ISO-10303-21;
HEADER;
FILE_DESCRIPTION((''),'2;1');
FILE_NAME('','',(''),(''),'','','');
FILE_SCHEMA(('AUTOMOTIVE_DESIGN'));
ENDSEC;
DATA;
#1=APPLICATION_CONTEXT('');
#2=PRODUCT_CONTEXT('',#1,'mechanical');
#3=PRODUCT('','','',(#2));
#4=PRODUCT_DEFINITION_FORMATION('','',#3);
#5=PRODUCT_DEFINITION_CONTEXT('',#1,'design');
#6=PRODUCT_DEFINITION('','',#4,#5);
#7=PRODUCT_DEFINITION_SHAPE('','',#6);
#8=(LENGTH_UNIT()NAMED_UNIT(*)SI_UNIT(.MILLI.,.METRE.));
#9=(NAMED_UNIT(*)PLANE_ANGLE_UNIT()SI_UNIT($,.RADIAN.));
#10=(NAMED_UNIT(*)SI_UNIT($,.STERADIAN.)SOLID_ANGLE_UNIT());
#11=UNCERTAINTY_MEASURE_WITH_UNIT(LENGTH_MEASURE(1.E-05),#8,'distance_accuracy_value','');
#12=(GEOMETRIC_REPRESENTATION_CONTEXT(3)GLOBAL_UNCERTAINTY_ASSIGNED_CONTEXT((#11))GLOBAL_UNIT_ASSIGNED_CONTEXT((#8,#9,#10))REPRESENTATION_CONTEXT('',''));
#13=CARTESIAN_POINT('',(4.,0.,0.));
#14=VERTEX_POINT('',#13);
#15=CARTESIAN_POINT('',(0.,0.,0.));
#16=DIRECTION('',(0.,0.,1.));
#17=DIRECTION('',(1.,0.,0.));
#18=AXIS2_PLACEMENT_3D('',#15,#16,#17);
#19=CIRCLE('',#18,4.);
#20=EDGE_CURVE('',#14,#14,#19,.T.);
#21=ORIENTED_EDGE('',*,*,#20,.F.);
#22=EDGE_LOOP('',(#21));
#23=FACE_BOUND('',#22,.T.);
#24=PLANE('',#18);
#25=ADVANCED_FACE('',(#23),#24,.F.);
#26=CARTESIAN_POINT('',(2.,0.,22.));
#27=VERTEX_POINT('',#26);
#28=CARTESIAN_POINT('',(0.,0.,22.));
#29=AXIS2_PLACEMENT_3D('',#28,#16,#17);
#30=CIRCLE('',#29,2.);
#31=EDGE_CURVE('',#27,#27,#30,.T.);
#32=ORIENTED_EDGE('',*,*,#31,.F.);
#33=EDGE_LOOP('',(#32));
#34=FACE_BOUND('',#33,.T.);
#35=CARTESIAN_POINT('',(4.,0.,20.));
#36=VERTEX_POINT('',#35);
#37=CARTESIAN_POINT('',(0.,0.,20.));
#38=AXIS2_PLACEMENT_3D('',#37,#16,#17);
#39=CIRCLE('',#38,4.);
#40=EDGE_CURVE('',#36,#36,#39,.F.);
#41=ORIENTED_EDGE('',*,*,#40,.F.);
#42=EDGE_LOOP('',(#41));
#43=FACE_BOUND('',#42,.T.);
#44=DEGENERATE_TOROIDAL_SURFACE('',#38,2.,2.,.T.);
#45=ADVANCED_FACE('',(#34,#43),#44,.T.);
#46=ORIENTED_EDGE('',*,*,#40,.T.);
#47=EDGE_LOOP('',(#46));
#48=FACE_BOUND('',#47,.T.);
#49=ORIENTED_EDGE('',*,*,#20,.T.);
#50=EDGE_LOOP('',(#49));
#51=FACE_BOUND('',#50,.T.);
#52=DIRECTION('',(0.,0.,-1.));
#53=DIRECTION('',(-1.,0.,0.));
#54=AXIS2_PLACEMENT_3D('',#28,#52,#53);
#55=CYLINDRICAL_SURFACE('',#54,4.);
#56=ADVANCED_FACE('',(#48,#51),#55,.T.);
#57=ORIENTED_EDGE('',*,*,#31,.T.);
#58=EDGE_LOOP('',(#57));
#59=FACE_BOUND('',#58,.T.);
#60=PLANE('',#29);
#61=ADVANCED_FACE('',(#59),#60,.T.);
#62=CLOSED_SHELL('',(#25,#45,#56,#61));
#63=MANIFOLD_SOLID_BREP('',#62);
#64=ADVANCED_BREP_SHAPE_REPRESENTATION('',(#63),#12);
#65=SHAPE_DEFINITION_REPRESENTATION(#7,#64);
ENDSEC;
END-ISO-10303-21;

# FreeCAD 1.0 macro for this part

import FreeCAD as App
import Part
import Sketcher


def edges_at(feature, points):
    """Names of the edges that pass closest to the given points."""
    edges = feature.Shape.Edges
    near = lambda p: min(range(len(edges)), key=lambda i: edges[i].distToShape(Part.Vertex(*p))[0])
    return sorted({f"Edge{near(p) + 1}" for p in points})

doc = App.newDocument("Part")
params = doc.addObject("Spreadsheet::Sheet", "Params")
for row, (alias, value) in enumerate([
    ("sketch1_diameter", "8 mm"),
    ("pad1_length", "22 mm"),
    ("fillet_radius", "2 mm"),
], start=1):
    params.set(f"A{row}", alias)
    params.set(f"B{row}", "=" + value)
    params.setAlias(f"B{row}", alias)

body = doc.addObject("PartDesign::Body", "Body")

sketch1 = body.newObject("Sketcher::SketchObject", "Sketch")
sketch1.AttachmentSupport = (doc.getObject("XY_Plane"), [""])
sketch1.MapMode = "FlatFace"
sketch1.addGeometry(Part.Circle(App.Vector(0, 0, 0), App.Vector(0, 0, 1), 4), False)
sketch1.addConstraint(Sketcher.Constraint("Coincident", 0, 3, -1, 1))
sketch1.addConstraint(Sketcher.Constraint("Diameter", 0, 8.0))
sketch1.setExpression("Constraints[1]", "Params.sketch1_diameter")
pad1 = body.newObject("PartDesign::Pad", "Pad")
pad1.Profile = sketch1
pad1.setExpression("Length", "Params.pad1_length")
doc.recompute()

fillet = body.newObject("PartDesign::Fillet", "Fillet")
fillet.Base = (pad1, edges_at(pad1, [(-4, 0, 22)]))
fillet.setExpression("Radius", "Params.fillet_radius")

doc.recompute()
